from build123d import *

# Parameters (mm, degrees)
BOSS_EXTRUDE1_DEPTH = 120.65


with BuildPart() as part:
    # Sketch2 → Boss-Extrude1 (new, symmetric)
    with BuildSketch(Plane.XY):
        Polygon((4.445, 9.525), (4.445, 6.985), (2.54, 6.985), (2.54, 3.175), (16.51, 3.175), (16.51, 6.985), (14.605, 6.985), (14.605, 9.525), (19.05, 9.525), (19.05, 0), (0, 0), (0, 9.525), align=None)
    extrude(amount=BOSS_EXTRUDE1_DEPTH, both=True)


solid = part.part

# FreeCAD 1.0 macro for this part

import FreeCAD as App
import Part
import Sketcher
from FreeCAD import Vector
Q = App.Units.Quantity

doc = App.newDocument("Part")
body = doc.addObject("PartDesign::Body", "Body")

# Sketch on XY plane
sketch1 = body.newObject("Sketcher::SketchObject", "Sketch")
sketch1.AttachmentSupport = (doc.getObject("XY_Plane"), [""])
sketch1.MapMode = "FlatFace"
sketch1.addGeometry(Part.LineSegment(Vector(4.445, 6.985, 0), Vector(4.445, 9.525, 0)), False)
sketch1.addGeometry(Part.LineSegment(Vector(4.445, 9.525, 0), Vector(0, 9.525, 0)), False)
sketch1.addGeometry(Part.LineSegment(Vector(0, 9.525, 0), Vector(0, 0, 0)), False)
sketch1.addGeometry(Part.LineSegment(Vector(0, 0, 0), Vector(19.05, 0, 0)), False)
sketch1.addGeometry(Part.LineSegment(Vector(19.05, 0, 0), Vector(19.05, 9.525, 0)), False)
sketch1.addGeometry(Part.LineSegment(Vector(19.05, 9.525, 0), Vector(14.605, 9.525, 0)), False)
sketch1.addGeometry(Part.LineSegment(Vector(14.605, 9.525, 0), Vector(14.605, 6.985, 0)), False)
sketch1.addGeometry(Part.LineSegment(Vector(14.605, 6.985, 0), Vector(16.51, 6.985, 0)), False)
sketch1.addGeometry(Part.LineSegment(Vector(16.51, 6.985, 0), Vector(16.51, 3.175, 0)), False)
sketch1.addGeometry(Part.LineSegment(Vector(16.51, 3.175, 0), Vector(2.54, 3.175, 0)), False)
sketch1.addGeometry(Part.LineSegment(Vector(2.54, 3.175, 0), Vector(2.54, 6.985, 0)), False)
sketch1.addGeometry(Part.LineSegment(Vector(2.54, 6.985, 0), Vector(4.445, 6.985, 0)), False)
sketch1.addConstraint(Sketcher.Constraint("Coincident", 0, 2, 1, 1))
sketch1.addConstraint(Sketcher.Constraint("Coincident", 1, 2, 2, 1))
sketch1.addConstraint(Sketcher.Constraint("Coincident", 2, 2, 3, 1))
sketch1.addConstraint(Sketcher.Constraint("Coincident", 3, 2, 4, 1))
sketch1.addConstraint(Sketcher.Constraint("Coincident", 4, 2, 5, 1))
sketch1.addConstraint(Sketcher.Constraint("Coincident", 5, 2, 6, 1))
sketch1.addConstraint(Sketcher.Constraint("Coincident", 6, 2, 7, 1))
sketch1.addConstraint(Sketcher.Constraint("Coincident", 7, 2, 8, 1))
sketch1.addConstraint(Sketcher.Constraint("Coincident", 8, 2, 9, 1))
sketch1.addConstraint(Sketcher.Constraint("Coincident", 9, 2, 10, 1))
sketch1.addConstraint(Sketcher.Constraint("Coincident", 10, 2, 11, 1))
sketch1.addConstraint(Sketcher.Constraint("Coincident", 11, 2, 0, 1))
sketch1.addConstraint(Sketcher.Constraint("Vertical", 0))
sketch1.addConstraint(Sketcher.Constraint("Horizontal", 1))
sketch1.addConstraint(Sketcher.Constraint("Vertical", 2))
sketch1.addConstraint(Sketcher.Constraint("Horizontal", 3))
sketch1.addConstraint(Sketcher.Constraint("Vertical", 4))
sketch1.addConstraint(Sketcher.Constraint("Horizontal", 5))
sketch1.addConstraint(Sketcher.Constraint("Vertical", 6))
sketch1.addConstraint(Sketcher.Constraint("Horizontal", 7))
sketch1.addConstraint(Sketcher.Constraint("Vertical", 8))
sketch1.addConstraint(Sketcher.Constraint("Horizontal", 9))
sketch1.addConstraint(Sketcher.Constraint("Vertical", 10))
sketch1.addConstraint(Sketcher.Constraint("Horizontal", 11))
sketch1.addConstraint(Sketcher.Constraint("Coincident", 2, 2, -1, 1))
sketch1.addConstraint(Sketcher.Constraint("Horizontal", 1, 2, 4, 2))
sketch1.addConstraint(Sketcher.Constraint("Horizontal", 7, 2, 10, 2))
sketch1.addConstraint(Sketcher.Constraint("Equal", 1, 5))
sketch1.addConstraint(Sketcher.Constraint("Equal", 7, 11))
sketch1.addConstraint(Sketcher.Constraint("DistanceY", 0, 1, 0, 2, Q("0.1 in")))
sketch1.addConstraint(Sketcher.Constraint("DistanceX", 3, 1, 3, 2, Q("0.75 in")))
sketch1.addConstraint(Sketcher.Constraint("DistanceX", 9, 2, 9, 1, Q("0.55 in")))
sketch1.addConstraint(Sketcher.Constraint("DistanceY", 8, 2, 8, 1, Q("0.15 in")))
sketch1.addConstraint(Sketcher.Constraint("DistanceX", 0, 2, 5, 2, Q("0.4 in")))
sketch1.addConstraint(Sketcher.Constraint("DistanceY", 2, 2, 2, 1, Q("0.375 in")))
pad1 = body.newObject("PartDesign::Pad", "Pad")
pad1.Profile = sketch1
pad1.Length = Q("9.5 in")
pad1.Midplane = True

doc.recompute()
